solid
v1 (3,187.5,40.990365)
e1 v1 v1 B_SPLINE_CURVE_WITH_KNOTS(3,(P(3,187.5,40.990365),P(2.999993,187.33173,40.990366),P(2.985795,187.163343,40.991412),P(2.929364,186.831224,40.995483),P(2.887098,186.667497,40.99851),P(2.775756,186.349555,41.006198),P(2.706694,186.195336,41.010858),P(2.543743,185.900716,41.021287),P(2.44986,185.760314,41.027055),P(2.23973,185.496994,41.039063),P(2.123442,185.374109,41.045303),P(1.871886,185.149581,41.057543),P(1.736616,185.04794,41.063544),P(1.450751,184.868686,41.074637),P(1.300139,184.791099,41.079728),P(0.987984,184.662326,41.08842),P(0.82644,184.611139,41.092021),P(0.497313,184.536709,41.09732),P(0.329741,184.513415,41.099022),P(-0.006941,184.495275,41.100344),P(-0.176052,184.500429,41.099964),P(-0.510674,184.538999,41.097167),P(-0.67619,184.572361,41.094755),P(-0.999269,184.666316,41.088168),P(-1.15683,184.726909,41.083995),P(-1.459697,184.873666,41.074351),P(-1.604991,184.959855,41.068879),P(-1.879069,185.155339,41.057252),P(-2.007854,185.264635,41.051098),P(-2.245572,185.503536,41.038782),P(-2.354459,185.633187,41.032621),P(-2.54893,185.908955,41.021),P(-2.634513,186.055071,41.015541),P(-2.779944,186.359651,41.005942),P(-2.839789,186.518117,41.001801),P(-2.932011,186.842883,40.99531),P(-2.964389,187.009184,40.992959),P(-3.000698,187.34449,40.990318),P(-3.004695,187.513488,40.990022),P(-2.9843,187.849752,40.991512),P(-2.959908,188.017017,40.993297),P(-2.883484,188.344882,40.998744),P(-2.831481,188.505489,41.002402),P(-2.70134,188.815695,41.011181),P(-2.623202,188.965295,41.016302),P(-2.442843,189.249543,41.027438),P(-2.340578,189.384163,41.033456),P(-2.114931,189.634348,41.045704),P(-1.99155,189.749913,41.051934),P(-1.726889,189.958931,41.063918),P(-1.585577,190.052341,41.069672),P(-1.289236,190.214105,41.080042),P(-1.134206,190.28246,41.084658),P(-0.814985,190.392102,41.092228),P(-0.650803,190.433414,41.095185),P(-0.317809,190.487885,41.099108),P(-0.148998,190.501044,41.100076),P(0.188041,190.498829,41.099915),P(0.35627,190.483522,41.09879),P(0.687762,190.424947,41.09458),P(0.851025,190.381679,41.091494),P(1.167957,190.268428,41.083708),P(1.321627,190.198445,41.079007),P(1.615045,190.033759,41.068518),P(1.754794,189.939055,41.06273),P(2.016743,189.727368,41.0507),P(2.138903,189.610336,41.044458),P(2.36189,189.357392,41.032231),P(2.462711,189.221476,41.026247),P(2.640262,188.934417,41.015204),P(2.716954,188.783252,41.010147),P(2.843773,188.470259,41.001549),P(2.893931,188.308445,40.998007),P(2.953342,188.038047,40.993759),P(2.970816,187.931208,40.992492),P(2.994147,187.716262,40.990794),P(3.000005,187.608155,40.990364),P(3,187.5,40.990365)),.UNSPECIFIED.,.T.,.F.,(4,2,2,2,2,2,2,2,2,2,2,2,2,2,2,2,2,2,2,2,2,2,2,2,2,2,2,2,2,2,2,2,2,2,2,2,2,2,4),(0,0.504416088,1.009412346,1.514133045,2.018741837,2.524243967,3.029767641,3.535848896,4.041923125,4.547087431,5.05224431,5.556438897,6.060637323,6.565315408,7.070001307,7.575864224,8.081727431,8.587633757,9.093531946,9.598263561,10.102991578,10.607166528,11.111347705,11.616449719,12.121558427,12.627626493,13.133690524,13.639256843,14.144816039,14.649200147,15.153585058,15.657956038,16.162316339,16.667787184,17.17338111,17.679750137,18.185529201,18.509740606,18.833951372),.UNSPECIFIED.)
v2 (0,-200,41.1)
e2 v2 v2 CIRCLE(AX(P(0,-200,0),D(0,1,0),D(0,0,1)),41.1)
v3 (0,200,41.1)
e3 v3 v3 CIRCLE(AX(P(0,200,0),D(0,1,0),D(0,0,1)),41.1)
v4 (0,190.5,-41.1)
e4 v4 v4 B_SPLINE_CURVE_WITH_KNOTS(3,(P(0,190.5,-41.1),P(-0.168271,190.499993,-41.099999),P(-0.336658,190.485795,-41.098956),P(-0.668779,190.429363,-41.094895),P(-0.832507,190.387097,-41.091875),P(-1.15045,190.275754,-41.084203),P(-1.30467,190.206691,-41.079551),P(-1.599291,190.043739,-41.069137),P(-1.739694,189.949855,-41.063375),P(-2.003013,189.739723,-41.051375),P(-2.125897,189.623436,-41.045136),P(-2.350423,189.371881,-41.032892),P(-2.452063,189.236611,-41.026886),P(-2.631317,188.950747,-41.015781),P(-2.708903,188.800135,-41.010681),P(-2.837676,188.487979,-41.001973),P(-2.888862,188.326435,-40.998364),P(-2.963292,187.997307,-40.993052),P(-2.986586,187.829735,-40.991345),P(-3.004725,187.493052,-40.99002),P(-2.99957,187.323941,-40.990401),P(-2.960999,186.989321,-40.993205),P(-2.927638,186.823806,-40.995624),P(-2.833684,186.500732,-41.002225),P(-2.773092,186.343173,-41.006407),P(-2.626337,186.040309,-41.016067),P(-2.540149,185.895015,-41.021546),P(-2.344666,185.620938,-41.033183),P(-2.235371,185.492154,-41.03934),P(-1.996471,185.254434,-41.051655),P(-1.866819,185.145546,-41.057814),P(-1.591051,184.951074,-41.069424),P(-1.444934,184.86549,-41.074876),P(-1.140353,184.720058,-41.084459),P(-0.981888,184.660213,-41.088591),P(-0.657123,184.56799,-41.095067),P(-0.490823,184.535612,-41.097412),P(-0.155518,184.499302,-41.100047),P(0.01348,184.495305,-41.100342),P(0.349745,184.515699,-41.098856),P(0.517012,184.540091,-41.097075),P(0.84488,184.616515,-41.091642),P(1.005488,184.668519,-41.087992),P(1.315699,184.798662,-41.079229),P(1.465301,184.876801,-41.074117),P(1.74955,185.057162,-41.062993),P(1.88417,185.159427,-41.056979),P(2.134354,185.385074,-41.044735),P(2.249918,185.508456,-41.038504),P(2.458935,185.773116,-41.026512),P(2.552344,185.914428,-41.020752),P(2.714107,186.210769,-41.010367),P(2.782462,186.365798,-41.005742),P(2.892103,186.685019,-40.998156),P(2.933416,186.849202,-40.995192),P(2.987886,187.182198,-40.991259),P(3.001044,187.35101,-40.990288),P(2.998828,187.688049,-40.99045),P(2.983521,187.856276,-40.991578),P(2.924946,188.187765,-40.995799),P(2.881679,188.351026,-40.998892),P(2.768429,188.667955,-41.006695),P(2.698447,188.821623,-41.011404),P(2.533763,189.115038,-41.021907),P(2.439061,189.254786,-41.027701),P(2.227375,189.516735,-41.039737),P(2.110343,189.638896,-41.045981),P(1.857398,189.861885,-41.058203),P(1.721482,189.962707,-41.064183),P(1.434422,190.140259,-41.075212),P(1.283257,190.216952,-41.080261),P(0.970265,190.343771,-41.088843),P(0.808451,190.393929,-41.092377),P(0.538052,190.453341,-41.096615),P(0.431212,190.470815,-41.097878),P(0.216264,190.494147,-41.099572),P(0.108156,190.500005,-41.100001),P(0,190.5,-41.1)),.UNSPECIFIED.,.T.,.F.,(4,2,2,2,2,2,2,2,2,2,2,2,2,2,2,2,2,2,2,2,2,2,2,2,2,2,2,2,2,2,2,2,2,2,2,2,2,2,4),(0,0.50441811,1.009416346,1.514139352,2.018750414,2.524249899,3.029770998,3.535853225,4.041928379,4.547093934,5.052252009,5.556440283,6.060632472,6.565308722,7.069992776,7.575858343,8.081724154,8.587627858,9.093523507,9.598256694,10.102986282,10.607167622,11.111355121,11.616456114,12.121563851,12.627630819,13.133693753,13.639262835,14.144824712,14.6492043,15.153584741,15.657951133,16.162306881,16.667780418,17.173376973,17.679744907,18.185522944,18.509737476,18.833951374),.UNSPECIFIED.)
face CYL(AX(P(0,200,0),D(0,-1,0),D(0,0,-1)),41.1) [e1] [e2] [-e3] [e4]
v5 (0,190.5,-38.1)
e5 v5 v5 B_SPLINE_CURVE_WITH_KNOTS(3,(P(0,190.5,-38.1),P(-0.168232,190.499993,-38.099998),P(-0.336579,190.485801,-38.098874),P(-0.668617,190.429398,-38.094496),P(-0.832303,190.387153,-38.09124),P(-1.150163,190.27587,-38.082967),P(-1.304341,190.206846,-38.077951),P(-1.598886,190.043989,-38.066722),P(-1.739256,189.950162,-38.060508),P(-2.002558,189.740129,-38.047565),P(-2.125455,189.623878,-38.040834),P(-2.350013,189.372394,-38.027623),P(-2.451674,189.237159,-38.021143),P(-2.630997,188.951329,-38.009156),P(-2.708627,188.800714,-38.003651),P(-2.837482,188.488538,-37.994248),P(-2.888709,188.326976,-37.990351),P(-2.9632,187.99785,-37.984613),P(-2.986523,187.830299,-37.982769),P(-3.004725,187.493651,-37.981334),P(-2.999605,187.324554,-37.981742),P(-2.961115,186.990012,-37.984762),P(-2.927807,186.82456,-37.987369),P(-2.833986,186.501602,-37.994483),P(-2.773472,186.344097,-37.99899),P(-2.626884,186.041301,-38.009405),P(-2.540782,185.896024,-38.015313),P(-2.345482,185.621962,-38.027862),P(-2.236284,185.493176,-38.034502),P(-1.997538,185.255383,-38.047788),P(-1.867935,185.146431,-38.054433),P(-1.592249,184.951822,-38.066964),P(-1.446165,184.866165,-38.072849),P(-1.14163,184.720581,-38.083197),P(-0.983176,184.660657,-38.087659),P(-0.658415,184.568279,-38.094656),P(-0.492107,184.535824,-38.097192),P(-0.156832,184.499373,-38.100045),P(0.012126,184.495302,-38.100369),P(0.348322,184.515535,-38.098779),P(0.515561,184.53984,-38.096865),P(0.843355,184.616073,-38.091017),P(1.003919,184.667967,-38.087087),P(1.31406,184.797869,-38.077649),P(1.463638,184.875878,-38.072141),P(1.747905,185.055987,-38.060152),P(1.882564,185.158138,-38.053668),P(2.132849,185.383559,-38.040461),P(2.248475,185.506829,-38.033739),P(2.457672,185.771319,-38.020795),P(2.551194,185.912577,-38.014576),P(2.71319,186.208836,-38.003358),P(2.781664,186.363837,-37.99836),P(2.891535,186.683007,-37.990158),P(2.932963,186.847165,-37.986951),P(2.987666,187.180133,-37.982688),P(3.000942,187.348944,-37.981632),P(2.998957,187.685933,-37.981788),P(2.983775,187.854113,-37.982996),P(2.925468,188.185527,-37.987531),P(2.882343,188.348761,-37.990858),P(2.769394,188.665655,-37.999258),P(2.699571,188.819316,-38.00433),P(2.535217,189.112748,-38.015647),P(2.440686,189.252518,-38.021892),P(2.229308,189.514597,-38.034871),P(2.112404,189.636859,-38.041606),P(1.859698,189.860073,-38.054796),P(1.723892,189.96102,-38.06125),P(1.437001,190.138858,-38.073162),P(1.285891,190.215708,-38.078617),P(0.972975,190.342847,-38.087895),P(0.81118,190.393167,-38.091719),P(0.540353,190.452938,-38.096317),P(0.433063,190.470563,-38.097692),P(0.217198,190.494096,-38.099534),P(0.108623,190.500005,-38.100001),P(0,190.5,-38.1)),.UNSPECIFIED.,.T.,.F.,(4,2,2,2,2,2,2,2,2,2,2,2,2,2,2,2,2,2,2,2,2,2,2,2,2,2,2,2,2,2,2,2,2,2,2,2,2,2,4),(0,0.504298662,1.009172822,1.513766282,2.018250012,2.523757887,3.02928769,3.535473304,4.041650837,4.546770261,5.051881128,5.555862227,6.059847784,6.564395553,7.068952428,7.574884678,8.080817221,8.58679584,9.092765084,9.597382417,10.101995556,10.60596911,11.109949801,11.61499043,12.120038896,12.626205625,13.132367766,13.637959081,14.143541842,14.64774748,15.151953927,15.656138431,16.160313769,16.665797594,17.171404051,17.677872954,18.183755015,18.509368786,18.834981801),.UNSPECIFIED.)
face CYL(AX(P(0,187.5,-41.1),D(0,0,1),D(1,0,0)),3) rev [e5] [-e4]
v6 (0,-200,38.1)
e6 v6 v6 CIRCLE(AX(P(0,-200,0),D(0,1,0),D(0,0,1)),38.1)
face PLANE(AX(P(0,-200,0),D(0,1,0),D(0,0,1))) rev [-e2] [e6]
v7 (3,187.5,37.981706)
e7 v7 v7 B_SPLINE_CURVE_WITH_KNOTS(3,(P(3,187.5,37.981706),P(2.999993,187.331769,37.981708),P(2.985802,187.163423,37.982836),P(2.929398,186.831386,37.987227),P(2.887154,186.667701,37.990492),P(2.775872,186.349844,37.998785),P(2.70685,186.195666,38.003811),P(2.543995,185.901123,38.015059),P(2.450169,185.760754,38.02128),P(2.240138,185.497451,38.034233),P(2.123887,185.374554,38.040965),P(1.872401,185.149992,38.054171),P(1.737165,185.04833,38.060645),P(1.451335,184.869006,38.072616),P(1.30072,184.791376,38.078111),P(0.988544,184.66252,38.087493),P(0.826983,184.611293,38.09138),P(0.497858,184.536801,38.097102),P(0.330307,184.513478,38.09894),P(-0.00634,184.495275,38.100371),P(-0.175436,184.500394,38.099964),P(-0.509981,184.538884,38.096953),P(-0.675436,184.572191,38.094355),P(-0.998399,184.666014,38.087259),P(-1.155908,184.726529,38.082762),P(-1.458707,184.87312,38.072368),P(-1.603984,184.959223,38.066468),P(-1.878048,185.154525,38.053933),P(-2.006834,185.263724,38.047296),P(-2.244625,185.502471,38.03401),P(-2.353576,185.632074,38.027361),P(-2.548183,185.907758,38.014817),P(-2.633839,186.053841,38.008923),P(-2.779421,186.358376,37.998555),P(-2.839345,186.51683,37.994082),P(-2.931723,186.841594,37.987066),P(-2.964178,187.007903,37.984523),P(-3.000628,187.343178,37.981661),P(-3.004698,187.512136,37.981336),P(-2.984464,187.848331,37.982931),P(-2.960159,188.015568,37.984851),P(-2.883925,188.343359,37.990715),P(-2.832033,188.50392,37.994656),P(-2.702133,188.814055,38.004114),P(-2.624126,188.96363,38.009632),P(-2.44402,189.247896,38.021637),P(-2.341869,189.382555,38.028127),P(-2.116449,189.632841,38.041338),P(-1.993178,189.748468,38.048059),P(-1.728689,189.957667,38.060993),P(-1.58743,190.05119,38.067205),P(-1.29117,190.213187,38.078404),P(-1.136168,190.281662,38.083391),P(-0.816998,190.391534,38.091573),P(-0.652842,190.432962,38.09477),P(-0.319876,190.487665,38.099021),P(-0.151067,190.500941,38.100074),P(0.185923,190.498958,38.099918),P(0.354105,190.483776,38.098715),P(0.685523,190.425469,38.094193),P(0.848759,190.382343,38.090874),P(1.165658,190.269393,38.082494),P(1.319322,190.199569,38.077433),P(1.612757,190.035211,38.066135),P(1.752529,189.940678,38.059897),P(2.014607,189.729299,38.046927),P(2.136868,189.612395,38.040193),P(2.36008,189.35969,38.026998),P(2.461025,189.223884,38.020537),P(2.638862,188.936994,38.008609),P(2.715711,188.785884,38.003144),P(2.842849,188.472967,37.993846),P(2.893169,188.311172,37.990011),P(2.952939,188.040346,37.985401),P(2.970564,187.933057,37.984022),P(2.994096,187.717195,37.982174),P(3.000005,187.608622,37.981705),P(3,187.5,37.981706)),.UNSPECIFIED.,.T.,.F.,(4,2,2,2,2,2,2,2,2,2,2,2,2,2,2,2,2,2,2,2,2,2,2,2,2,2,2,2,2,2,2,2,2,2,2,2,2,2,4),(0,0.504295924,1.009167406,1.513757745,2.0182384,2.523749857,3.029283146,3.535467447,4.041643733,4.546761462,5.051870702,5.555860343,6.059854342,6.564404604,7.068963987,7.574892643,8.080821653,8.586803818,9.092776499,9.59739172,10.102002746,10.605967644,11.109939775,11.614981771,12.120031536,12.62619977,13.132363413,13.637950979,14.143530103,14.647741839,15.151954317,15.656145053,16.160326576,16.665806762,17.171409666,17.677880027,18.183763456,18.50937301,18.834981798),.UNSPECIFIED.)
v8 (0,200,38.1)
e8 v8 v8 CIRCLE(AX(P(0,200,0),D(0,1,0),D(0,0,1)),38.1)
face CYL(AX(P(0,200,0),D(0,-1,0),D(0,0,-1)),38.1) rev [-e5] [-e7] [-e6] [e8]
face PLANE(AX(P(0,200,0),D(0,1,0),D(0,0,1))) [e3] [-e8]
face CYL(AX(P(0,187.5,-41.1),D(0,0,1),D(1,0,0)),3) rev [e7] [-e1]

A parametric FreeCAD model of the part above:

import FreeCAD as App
import Part
import Sketcher
from FreeCAD import Vector
Q = App.Units.Quantity

doc = App.newDocument("Part")
body = doc.addObject("PartDesign::Body", "Body")

# Sketch on XZ plane
sketch1 = doc.addObject("Sketcher::SketchObject", "Sketch")
body.addObject(sketch1)
sketch1.AttachmentSupport = (doc.XZ_Plane, [""])
sketch1.MapMode = "FlatFace"
sketch1.addGeometry([
    Part.Circle(Vector(0, 0, 0), Vector(0, 0, 1), 41),
    Part.Circle(Vector(0, 0, 0), Vector(0, 0, 1), 38),
], False)
sketch1.addConstraint([
    Sketcher.Constraint("Coincident", 0, 3, -1, 1),
    Sketcher.Constraint("Coincident", 1, 3, -1, 1),
    Sketcher.Constraint("Diameter", 0, Q("82.2 mm")),
    Sketcher.Constraint("Diameter", 1, Q("76.2 mm")),
])
pad1 = doc.addObject("PartDesign::Pad", "Pad")
body.addObject(pad1)
pad1.Profile = sketch1
pad1.Length = 400
pad1.Midplane = True

# Sketch on XY plane
sketch2 = doc.addObject("Sketcher::SketchObject", "Sketch001")
body.addObject(sketch2)
sketch2.AttachmentSupport = (doc.XY_Plane, [""])
sketch2.MapMode = "FlatFace"
sketch2.addGeometry(Part.Circle(Vector(0, 187.5, 0), Vector(0, 0, 1), 3), False)
sketch2.addConstraint([
    Sketcher.Constraint("PointOnObject", 0, 3, -2),
    Sketcher.Constraint("Diameter", 0, Q("6 mm")),
    Sketcher.Constraint("DistanceY", -1, 1, 0, 3, Q("187.5 mm")),
])
pocket1 = doc.addObject("PartDesign::Pocket", "Pocket")
body.addObject(pocket1)
pocket1.Profile = sketch2
pocket1.Type = "ThroughAll"
pocket1.Midplane = True

doc.recompute()
